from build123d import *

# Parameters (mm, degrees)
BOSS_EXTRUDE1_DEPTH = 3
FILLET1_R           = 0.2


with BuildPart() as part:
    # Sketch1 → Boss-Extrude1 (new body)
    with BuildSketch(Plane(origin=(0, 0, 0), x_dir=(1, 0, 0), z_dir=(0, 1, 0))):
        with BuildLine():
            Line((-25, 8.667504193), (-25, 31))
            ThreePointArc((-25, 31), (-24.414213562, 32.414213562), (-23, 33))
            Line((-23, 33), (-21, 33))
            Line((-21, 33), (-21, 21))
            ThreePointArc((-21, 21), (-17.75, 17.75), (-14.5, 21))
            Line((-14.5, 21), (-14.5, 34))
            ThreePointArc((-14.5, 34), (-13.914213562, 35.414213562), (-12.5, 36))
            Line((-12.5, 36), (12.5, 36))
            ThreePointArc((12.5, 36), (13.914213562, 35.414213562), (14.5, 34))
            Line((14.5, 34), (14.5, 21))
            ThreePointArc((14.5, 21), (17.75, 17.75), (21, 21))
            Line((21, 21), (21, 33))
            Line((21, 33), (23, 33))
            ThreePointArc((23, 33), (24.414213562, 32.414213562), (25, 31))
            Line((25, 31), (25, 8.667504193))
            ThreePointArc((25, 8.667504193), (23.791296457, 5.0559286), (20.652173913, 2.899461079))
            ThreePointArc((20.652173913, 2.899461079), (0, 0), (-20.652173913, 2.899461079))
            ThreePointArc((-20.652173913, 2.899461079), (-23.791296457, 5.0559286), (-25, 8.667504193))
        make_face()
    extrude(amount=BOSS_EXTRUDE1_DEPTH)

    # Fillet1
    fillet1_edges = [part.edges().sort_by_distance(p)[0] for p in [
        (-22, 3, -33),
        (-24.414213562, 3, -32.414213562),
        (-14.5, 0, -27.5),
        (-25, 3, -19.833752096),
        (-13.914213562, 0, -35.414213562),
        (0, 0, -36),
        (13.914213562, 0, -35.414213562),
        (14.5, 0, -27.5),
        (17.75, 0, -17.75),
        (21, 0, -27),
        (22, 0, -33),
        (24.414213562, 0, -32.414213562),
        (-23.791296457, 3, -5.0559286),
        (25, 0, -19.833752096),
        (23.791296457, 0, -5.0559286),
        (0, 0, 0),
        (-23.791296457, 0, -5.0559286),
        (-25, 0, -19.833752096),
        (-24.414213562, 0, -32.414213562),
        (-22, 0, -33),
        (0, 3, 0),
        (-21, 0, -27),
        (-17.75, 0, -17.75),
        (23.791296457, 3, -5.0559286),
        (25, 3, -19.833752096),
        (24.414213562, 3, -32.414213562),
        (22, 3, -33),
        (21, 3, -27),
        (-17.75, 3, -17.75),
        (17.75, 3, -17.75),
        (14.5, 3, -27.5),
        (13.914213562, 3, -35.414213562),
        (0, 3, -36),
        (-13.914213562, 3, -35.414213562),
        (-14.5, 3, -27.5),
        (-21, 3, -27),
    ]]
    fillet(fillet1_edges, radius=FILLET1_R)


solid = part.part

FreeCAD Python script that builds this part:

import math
import FreeCAD as App
import Part
import Sketcher
Q = App.Units.Quantity


def edges_at(feature, points):
    """Names of the edges that pass closest to the given points."""
    edges = feature.Shape.Edges
    near = lambda p: min(range(len(edges)), key=lambda i: edges[i].distToShape(Part.Vertex(*p))[0])
    return sorted({f"Edge{near(p) + 1}" for p in points})

doc = App.newDocument("Part")
params = doc.addObject("Spreadsheet::Sheet", "Params")
for row, (alias, value) in enumerate([
    ("sketch1_radius", "6 mm"),
    ("sketch1_radius2", "75 mm"),
    ("sketch1_radius3", "2 mm"),
    ("sketch1_width", "2 mm"),
    ("sketch1_width2", "25 mm"),
    ("pad1_length", "3 mm"),
    ("fillet_radius", "0.2 mm"),
], start=1):
    params.set(f"A{row}", alias)
    params.set(f"B{row}", "=" + value)
    params.setAlias(f"B{row}", alias)

body = doc.addObject("PartDesign::Body", "Body")

sketch1 = body.newObject("Sketcher::SketchObject", "Sketch")
sketch1.AttachmentSupport = (doc.getObject("XZ_Plane"), [""])
sketch1.MapMode = "FlatFace"
sketch1.addGeometry([
    Part.LineSegment(App.Vector(-25, -31, 0), App.Vector(-25, -8.7, 0)),
    Part.ArcOfCircle(Part.Circle(App.Vector(-19, -8.7, 0), App.Vector(0, 0, 1), 6), math.radians(106), math.radians(180)),
    Part.ArcOfCircle(Part.Circle(App.Vector(0, -75, 0), App.Vector(0, 0, 1), 75), math.radians(74), math.radians(106)),
    Part.ArcOfCircle(Part.Circle(App.Vector(19, -8.7, 0), App.Vector(0, 0, 1), 6), math.radians(0), math.radians(74)),
    Part.LineSegment(App.Vector(25, -8.7, 0), App.Vector(25, -31, 0)),
    Part.ArcOfCircle(Part.Circle(App.Vector(23, -31, 0), App.Vector(0, 0, 1), 2), math.radians(-90), math.radians(0)),
    Part.LineSegment(App.Vector(23, -33, 0), App.Vector(21, -33, 0)),
    Part.LineSegment(App.Vector(21, -33, 0), App.Vector(21, -21, 0)),
    Part.ArcOfCircle(Part.Circle(App.Vector(17.8, -21, 0), App.Vector(0, 0, 1), 3.2), math.radians(0), math.radians(180)),
    Part.LineSegment(App.Vector(14.5, -21, 0), App.Vector(14.5, -34, 0)),
    Part.ArcOfCircle(Part.Circle(App.Vector(12.5, -34, 0), App.Vector(0, 0, 1), 2), math.radians(-90), math.radians(0)),
    Part.LineSegment(App.Vector(12.5, -36, 0), App.Vector(-12.5, -36, 0)),
    Part.ArcOfCircle(Part.Circle(App.Vector(-12.5, -34, 0), App.Vector(0, 0, 1), 2), math.radians(-180), math.radians(-90)),
    Part.LineSegment(App.Vector(-14.5, -34, 0), App.Vector(-14.5, -21, 0)),
    Part.ArcOfCircle(Part.Circle(App.Vector(-17.8, -21, 0), App.Vector(0, 0, 1), 3.2), math.radians(0), math.radians(180)),
    Part.LineSegment(App.Vector(-21, -21, 0), App.Vector(-21, -33, 0)),
    Part.LineSegment(App.Vector(-21, -33, 0), App.Vector(-23, -33, 0)),
    Part.ArcOfCircle(Part.Circle(App.Vector(-23, -31, 0), App.Vector(0, 0, 1), 2), math.radians(-180), math.radians(-90)),
], False)
sketch1.addConstraint([
    Sketcher.Constraint("Tangent", 0, 2, 1, 2),
    Sketcher.Constraint("Tangent", 1, 1, 2, 2),
    Sketcher.Constraint("Tangent", 2, 1, 3, 2),
    Sketcher.Constraint("Tangent", 3, 1, 4, 1),
    Sketcher.Constraint("Tangent", 4, 2, 5, 2),
    Sketcher.Constraint("Tangent", 5, 1, 6, 1),
    Sketcher.Constraint("Coincident", 6, 2, 7, 1),
    Sketcher.Constraint("Tangent", 7, 2, 8, 1),
    Sketcher.Constraint("Tangent", 8, 2, 9, 1),
    Sketcher.Constraint("Tangent", 9, 2, 10, 2),
    Sketcher.Constraint("Tangent", 10, 1, 11, 1),
    Sketcher.Constraint("Tangent", 11, 2, 12, 2),
    Sketcher.Constraint("Tangent", 12, 1, 13, 1),
    Sketcher.Constraint("Tangent", 13, 2, 14, 1),
    Sketcher.Constraint("Tangent", 14, 2, 15, 1),
    Sketcher.Constraint("Coincident", 15, 2, 16, 1),
    Sketcher.Constraint("Tangent", 16, 2, 17, 2),
    Sketcher.Constraint("Tangent", 17, 1, 0, 1),
    Sketcher.Constraint("Vertical", 0),
    Sketcher.Constraint("Vertical", 4),
    Sketcher.Constraint("Horizontal", 6),
    Sketcher.Constraint("Vertical", 7),
    Sketcher.Constraint("Vertical", 9),
    Sketcher.Constraint("Horizontal", 11),
    Sketcher.Constraint("Vertical", 13),
    Sketcher.Constraint("Vertical", 15),
    Sketcher.Constraint("Horizontal", 16),
    Sketcher.Constraint("Equal", 1, 3),
    Sketcher.Constraint("Equal", 5, 10),
    Sketcher.Constraint("Equal", 10, 12),
    Sketcher.Constraint("Equal", 8, 14),
    Sketcher.Constraint("Equal", 12, 17),
    Sketcher.Constraint("Symmetric", 1, 3, 3, 3, -2),
    Sketcher.Constraint("Symmetric", 8, 3, 14, 3, -2),
    Sketcher.Constraint("Horizontal", 5, 3, 17, 3),
    Sketcher.Constraint("Radius", 1, Q("6 mm")),
    Sketcher.Constraint("Radius", 2, Q("75 mm")),
    Sketcher.Constraint("Radius", 5, Q("2 mm")),
    Sketcher.Constraint("DistanceX", 6, 2, 6, 1, Q("2 mm")),
    Sketcher.Constraint("DistanceX", 11, 2, 11, 1, Q("25 mm")),
    Sketcher.Constraint("DistanceY", 7, 1, 7, 2, Q("12 mm")),
    Sketcher.Constraint("DistanceY", 9, 2, 9, 1, Q("13 mm")),
    Sketcher.Constraint("Radius", 8, Q("3.25 mm")),
    Sketcher.Constraint("DistanceY", 2, 3, -1, 1, Q("75 mm")),
    Sketcher.Constraint("DistanceY", 5, 3, -1, 1, Q("31 mm")),
])
sketch1.setExpression("Constraints[35]", "Params.sketch1_radius")
sketch1.setExpression("Constraints[36]", "Params.sketch1_radius2")
sketch1.setExpression("Constraints[37]", "Params.sketch1_radius3")
sketch1.setExpression("Constraints[38]", "Params.sketch1_width")
sketch1.setExpression("Constraints[39]", "Params.sketch1_width2")
pad1 = body.newObject("PartDesign::Pad", "Pad")
pad1.Profile = sketch1
pad1.setExpression("Length", "Params.pad1_length")
pad1.Reversed = True
doc.recompute()

fillet = body.newObject("PartDesign::Fillet", "Fillet")
fillet.Base = (pad1, edges_at(pad1, [
    (-22, 3, -33),
    (-24.414, 3, -32.414),
    (-14.5, 0, -27.5),
    (-25, 3, -19.834),
    (-13.914, 0, -35.414),
    (0, 0, -36),
    (13.914, 0, -35.414),
    (14.5, 0, -27.5),
    (17.75, 0, -17.75),
    (21, 0, -27),
    (22, 0, -33),
    (24.414, 0, -32.414),
    (-23.791, 3, -5.056),
    (25, 0, -19.834),
    (23.791, 0, -5.056),
    (0, 0, 0),
    (-23.791, 0, -5.056),
    (-25, 0, -19.834),
    (-24.414, 0, -32.414),
    (-22, 0, -33),
    (0, 3, 0),
    (-21, 0, -27),
    (-17.75, 0, -17.75),
    (23.791, 3, -5.056),
    (25, 3, -19.834),
    (24.414, 3, -32.414),
    (22, 3, -33),
    (21, 3, -27),
    (-17.75, 3, -17.75),
    (17.75, 3, -17.75),
    (14.5, 3, -27.5),
    (13.914, 3, -35.414),
    (0, 3, -36),
    (-13.914, 3, -35.414),
    (-14.5, 3, -27.5),
    (-21, 3, -27),
]))
fillet.setExpression("Radius", "Params.fillet_radius")

doc.recompute()
